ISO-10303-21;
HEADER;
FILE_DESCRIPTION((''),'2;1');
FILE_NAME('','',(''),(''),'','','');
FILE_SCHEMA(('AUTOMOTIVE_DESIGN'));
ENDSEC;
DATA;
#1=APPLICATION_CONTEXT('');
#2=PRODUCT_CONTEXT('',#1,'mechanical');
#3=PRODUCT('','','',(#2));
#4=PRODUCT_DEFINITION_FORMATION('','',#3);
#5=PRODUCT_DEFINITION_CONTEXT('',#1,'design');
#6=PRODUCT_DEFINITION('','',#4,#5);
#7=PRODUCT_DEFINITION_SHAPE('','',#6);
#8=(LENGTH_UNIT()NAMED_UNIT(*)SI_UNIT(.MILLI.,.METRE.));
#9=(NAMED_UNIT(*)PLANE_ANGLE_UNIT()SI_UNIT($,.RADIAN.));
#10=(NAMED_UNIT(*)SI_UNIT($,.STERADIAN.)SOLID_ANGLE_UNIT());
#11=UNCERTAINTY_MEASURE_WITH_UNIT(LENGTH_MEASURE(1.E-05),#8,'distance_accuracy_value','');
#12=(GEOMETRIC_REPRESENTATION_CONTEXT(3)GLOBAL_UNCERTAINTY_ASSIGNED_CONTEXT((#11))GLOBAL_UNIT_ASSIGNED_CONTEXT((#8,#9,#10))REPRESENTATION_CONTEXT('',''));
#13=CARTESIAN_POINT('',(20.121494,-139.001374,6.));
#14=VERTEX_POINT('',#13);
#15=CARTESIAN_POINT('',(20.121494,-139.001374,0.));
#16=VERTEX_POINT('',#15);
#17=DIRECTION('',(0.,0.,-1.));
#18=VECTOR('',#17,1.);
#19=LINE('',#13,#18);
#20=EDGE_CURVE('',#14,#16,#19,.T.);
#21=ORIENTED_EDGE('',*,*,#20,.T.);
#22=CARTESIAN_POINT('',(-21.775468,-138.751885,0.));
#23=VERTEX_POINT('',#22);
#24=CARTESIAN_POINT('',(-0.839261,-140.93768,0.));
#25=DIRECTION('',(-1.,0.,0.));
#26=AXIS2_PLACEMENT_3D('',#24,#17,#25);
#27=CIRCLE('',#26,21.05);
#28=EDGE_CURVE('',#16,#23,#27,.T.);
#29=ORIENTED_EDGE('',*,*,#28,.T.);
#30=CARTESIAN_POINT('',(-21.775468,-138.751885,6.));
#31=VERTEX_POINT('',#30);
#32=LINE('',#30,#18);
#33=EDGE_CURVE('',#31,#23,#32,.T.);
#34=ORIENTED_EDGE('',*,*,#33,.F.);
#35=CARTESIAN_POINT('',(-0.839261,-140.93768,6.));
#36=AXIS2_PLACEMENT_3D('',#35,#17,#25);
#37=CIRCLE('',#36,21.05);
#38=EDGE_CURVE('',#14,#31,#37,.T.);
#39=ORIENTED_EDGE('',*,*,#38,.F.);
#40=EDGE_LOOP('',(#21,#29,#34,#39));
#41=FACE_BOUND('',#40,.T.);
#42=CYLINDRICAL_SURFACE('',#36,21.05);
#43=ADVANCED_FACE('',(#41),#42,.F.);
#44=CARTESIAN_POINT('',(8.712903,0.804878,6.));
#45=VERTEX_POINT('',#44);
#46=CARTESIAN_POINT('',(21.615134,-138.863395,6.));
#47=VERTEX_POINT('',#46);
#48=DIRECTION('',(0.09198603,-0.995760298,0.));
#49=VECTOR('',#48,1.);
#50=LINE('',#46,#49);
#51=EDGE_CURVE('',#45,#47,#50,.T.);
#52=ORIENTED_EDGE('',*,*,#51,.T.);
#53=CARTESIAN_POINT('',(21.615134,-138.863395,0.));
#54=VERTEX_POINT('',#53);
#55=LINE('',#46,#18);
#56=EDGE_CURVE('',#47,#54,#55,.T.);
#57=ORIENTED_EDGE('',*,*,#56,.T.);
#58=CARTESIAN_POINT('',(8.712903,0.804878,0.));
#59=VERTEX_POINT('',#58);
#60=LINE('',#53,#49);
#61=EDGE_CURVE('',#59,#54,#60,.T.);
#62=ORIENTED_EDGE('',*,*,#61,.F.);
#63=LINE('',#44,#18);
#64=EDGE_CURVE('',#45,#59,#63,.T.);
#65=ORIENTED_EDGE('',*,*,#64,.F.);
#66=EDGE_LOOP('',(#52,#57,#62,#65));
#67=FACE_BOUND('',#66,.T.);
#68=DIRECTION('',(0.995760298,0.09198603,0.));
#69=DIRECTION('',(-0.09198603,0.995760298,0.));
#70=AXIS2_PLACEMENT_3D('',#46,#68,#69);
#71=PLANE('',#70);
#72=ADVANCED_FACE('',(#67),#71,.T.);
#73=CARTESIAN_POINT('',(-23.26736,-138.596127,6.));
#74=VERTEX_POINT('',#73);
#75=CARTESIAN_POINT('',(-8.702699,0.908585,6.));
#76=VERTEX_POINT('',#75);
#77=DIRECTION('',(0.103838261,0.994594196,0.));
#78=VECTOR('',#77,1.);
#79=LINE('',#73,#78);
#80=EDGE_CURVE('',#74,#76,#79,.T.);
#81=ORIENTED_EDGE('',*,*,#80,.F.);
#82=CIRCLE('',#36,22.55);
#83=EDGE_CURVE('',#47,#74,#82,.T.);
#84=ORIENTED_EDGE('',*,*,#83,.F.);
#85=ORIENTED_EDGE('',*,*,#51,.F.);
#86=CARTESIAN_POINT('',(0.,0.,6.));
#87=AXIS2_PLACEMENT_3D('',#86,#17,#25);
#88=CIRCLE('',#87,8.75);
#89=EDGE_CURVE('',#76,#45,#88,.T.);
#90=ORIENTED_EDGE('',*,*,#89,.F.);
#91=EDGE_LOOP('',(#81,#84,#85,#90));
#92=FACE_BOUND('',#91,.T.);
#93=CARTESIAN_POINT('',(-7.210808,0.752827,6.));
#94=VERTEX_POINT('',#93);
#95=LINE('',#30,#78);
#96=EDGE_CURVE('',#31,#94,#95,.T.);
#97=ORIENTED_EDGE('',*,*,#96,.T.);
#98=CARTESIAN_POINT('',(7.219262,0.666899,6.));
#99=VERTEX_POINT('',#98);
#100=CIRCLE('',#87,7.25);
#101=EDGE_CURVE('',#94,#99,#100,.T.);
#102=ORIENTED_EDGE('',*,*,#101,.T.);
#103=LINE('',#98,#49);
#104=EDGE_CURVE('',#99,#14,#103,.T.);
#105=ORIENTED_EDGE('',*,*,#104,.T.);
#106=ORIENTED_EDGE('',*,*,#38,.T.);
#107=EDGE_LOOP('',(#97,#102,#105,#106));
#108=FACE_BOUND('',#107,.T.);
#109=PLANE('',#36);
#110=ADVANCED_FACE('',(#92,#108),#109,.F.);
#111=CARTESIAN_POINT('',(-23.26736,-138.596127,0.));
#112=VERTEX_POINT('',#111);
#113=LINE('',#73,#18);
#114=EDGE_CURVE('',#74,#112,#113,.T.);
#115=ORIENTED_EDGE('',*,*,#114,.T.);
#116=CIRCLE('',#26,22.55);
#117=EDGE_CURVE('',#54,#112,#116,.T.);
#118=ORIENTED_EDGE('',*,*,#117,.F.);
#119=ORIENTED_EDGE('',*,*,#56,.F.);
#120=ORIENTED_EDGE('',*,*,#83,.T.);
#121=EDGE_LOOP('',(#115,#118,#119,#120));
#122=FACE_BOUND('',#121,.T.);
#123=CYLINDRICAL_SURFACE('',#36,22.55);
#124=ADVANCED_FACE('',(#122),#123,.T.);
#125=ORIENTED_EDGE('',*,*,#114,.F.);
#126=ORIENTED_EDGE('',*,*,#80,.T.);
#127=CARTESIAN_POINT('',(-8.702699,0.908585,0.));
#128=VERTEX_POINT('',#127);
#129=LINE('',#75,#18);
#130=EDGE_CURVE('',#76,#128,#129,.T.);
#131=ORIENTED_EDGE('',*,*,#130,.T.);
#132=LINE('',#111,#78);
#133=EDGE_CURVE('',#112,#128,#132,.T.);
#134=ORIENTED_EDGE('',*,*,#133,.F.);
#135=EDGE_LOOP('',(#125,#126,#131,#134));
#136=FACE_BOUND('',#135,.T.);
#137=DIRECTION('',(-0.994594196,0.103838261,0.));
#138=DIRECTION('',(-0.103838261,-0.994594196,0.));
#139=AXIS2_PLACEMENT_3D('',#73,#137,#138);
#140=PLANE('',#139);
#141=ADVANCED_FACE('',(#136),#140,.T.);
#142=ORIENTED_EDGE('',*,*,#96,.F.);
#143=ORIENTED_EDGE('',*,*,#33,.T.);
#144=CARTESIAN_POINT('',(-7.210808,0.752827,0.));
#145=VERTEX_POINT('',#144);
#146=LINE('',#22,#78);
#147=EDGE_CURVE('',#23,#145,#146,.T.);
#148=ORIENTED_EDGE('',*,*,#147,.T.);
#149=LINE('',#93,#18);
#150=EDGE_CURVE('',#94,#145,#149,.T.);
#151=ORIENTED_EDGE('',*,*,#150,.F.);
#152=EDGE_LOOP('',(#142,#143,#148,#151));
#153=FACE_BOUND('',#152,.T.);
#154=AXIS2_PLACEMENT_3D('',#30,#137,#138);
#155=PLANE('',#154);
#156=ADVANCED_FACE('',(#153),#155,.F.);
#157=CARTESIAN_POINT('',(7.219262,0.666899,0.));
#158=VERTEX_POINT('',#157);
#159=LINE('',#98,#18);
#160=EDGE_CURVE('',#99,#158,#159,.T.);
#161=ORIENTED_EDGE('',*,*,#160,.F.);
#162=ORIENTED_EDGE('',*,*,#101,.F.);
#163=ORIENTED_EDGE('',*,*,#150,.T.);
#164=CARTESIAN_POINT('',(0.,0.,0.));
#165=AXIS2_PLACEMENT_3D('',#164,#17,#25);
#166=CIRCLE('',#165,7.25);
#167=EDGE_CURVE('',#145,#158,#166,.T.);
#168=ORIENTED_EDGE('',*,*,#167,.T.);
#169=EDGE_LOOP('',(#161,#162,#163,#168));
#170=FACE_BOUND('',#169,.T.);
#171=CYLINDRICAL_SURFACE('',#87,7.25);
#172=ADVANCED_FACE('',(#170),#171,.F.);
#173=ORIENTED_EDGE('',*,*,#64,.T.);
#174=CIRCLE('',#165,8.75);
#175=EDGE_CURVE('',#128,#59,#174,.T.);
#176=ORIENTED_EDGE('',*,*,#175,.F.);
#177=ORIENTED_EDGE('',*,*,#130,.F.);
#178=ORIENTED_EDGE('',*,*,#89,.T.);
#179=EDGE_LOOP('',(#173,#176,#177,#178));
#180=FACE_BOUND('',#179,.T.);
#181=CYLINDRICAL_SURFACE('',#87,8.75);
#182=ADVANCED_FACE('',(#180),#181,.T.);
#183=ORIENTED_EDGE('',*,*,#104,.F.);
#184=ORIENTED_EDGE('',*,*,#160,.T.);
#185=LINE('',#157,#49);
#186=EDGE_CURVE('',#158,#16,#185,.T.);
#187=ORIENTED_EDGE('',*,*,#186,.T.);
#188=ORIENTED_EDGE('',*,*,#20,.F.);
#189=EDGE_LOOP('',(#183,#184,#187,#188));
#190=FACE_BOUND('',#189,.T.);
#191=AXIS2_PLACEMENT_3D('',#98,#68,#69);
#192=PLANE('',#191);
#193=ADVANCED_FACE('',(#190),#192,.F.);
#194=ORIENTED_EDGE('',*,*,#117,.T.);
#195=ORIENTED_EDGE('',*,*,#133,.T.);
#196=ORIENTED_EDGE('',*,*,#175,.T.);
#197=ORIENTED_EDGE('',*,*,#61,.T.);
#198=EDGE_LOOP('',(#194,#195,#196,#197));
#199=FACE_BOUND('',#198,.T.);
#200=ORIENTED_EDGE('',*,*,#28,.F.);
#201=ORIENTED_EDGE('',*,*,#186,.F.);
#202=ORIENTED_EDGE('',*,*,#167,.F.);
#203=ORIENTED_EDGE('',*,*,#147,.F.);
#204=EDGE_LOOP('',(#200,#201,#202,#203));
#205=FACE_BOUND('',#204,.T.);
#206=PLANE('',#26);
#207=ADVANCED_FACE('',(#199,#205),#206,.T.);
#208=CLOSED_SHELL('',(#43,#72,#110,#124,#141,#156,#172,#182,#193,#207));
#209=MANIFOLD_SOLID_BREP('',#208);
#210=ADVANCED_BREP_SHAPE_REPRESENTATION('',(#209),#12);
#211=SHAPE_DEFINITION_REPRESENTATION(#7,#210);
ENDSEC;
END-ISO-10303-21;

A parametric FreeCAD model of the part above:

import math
import FreeCAD as App
import Part
import Sketcher

V = App.Vector
Q = App.Units.Quantity

doc = App.newDocument("Part")
params = doc.addObject("Spreadsheet::Sheet", "Params")
for row, (alias, value) in enumerate([
    ("sketch1_radius", "22.55 mm"),
    ("sketch1_radius2", "8.75 mm"),
    ("sketch1_radius3", "7.25 mm"),
    ("sketch1_radius4", "21.05 mm"),
    ("pad1_length", "6 mm"),
], start=1):
    params.set(f"A{row}", alias)
    params.set(f"B{row}", "=" + value)
    params.setAlias(f"B{row}", alias)

body = doc.addObject("PartDesign::Body", "Body")

# Sketch on XY plane
sketch1 = body.newObject("Sketcher::SketchObject", "Sketch")
sketch1.AttachmentSupport = (doc.getObject("XY_Plane"), [""])
sketch1.MapMode = "FlatFace"
sketch1.addGeometry([
    Part.LineSegment(V(-8.702699, 0.908585, 0), V(-23.26736, -138.596127, 0)),  # 0
    Part.ArcOfCircle(Part.Circle(V(-0.839261, -140.93768, 0), V(0, 0, 1), 22.55), math.radians(174.039762), math.radians(365.277872)),  # 1
    Part.LineSegment(V(21.615134, -138.863395, 0), V(8.712903, 0.804878, 0)),  # 2
    Part.ArcOfCircle(Part.Circle(V(0, 0, 0), V(0, 0, 1), 8.75), math.radians(5.277872), math.radians(174.039762)),  # 3
    Part.LineSegment(V(-21.775468, -138.751885, 0), V(-7.210808, 0.752827, 0)),  # 4
    Part.ArcOfCircle(Part.Circle(V(0, 0, 0), V(0, 0, 1), 7.25), math.radians(5.277872), math.radians(174.039762)),  # 5
    Part.LineSegment(V(7.219262, 0.666899, 0), V(20.121494, -139.001374, 0)),  # 6
    Part.ArcOfCircle(Part.Circle(V(-0.839261, -140.93768, 0), V(0, 0, 1), 21.05), math.radians(174.039762), math.radians(365.277872)),  # 7
], False)
sketch1.addConstraint([
    Sketcher.Constraint("Coincident", 0, 2, 1, 1),
    Sketcher.Constraint("Coincident", 1, 2, 2, 1),
    Sketcher.Constraint("Coincident", 2, 2, 3, 1),
    Sketcher.Constraint("Coincident", 3, 2, 0, 1),
    Sketcher.Constraint("Coincident", 4, 2, 5, 2),
    Sketcher.Constraint("Coincident", 5, 1, 6, 1),
    Sketcher.Constraint("Coincident", 6, 2, 7, 2),
    Sketcher.Constraint("Coincident", 7, 1, 4, 1),
    Sketcher.Constraint("Coincident", 3, 3, -1, 1),
    Sketcher.Constraint("Coincident", 5, 3, -1, 1),
    Sketcher.Constraint("Coincident", 7, 3, 1, 3),
    Sketcher.Constraint("Radius", 1, Q("22.55 mm")),
    Sketcher.Constraint("Radius", 3, Q("8.75 mm")),
    Sketcher.Constraint("Radius", 5, Q("7.25 mm")),
    Sketcher.Constraint("Radius", 7, Q("21.05 mm")),
    Sketcher.Constraint("DistanceX", 3, 2, -1, 1, Q("8.702699 mm")),
    Sketcher.Constraint("DistanceY", -1, 1, 5, 1, Q("0.666899 mm")),
    Sketcher.Constraint("DistanceX", 0, 2, 1, 3, Q("22.428099 mm")),
    Sketcher.Constraint("DistanceX", 3, 2, 2, 2, Q("17.415602 mm")),
    Sketcher.Constraint("DistanceX", 1, 3, -1, 1, Q("0.839261 mm")),
    Sketcher.Constraint("DistanceY", 1, 3, -1, 1, Q("140.93768 mm")),
    Sketcher.Constraint("DistanceX", 7, 1, -1, 1, Q("21.775468 mm")),
    Sketcher.Constraint("DistanceX", 2, 2, 1, 2, Q("12.902232 mm")),
    Sketcher.Constraint("DistanceX", 3, 2, 4, 2, Q("1.491891 mm")),
    Sketcher.Constraint("DistanceX", 6, 2, 1, 2, Q("1.49364 mm")),
])
sketch1.setExpression("Constraints[11]", "Params.sketch1_radius")
sketch1.setExpression("Constraints[12]", "Params.sketch1_radius2")
sketch1.setExpression("Constraints[13]", "Params.sketch1_radius3")
sketch1.setExpression("Constraints[14]", "Params.sketch1_radius4")
pad1 = body.newObject("PartDesign::Pad", "Pad")
pad1.Profile = sketch1
pad1.setExpression("Length", "Params.pad1_length")

doc.recompute()
